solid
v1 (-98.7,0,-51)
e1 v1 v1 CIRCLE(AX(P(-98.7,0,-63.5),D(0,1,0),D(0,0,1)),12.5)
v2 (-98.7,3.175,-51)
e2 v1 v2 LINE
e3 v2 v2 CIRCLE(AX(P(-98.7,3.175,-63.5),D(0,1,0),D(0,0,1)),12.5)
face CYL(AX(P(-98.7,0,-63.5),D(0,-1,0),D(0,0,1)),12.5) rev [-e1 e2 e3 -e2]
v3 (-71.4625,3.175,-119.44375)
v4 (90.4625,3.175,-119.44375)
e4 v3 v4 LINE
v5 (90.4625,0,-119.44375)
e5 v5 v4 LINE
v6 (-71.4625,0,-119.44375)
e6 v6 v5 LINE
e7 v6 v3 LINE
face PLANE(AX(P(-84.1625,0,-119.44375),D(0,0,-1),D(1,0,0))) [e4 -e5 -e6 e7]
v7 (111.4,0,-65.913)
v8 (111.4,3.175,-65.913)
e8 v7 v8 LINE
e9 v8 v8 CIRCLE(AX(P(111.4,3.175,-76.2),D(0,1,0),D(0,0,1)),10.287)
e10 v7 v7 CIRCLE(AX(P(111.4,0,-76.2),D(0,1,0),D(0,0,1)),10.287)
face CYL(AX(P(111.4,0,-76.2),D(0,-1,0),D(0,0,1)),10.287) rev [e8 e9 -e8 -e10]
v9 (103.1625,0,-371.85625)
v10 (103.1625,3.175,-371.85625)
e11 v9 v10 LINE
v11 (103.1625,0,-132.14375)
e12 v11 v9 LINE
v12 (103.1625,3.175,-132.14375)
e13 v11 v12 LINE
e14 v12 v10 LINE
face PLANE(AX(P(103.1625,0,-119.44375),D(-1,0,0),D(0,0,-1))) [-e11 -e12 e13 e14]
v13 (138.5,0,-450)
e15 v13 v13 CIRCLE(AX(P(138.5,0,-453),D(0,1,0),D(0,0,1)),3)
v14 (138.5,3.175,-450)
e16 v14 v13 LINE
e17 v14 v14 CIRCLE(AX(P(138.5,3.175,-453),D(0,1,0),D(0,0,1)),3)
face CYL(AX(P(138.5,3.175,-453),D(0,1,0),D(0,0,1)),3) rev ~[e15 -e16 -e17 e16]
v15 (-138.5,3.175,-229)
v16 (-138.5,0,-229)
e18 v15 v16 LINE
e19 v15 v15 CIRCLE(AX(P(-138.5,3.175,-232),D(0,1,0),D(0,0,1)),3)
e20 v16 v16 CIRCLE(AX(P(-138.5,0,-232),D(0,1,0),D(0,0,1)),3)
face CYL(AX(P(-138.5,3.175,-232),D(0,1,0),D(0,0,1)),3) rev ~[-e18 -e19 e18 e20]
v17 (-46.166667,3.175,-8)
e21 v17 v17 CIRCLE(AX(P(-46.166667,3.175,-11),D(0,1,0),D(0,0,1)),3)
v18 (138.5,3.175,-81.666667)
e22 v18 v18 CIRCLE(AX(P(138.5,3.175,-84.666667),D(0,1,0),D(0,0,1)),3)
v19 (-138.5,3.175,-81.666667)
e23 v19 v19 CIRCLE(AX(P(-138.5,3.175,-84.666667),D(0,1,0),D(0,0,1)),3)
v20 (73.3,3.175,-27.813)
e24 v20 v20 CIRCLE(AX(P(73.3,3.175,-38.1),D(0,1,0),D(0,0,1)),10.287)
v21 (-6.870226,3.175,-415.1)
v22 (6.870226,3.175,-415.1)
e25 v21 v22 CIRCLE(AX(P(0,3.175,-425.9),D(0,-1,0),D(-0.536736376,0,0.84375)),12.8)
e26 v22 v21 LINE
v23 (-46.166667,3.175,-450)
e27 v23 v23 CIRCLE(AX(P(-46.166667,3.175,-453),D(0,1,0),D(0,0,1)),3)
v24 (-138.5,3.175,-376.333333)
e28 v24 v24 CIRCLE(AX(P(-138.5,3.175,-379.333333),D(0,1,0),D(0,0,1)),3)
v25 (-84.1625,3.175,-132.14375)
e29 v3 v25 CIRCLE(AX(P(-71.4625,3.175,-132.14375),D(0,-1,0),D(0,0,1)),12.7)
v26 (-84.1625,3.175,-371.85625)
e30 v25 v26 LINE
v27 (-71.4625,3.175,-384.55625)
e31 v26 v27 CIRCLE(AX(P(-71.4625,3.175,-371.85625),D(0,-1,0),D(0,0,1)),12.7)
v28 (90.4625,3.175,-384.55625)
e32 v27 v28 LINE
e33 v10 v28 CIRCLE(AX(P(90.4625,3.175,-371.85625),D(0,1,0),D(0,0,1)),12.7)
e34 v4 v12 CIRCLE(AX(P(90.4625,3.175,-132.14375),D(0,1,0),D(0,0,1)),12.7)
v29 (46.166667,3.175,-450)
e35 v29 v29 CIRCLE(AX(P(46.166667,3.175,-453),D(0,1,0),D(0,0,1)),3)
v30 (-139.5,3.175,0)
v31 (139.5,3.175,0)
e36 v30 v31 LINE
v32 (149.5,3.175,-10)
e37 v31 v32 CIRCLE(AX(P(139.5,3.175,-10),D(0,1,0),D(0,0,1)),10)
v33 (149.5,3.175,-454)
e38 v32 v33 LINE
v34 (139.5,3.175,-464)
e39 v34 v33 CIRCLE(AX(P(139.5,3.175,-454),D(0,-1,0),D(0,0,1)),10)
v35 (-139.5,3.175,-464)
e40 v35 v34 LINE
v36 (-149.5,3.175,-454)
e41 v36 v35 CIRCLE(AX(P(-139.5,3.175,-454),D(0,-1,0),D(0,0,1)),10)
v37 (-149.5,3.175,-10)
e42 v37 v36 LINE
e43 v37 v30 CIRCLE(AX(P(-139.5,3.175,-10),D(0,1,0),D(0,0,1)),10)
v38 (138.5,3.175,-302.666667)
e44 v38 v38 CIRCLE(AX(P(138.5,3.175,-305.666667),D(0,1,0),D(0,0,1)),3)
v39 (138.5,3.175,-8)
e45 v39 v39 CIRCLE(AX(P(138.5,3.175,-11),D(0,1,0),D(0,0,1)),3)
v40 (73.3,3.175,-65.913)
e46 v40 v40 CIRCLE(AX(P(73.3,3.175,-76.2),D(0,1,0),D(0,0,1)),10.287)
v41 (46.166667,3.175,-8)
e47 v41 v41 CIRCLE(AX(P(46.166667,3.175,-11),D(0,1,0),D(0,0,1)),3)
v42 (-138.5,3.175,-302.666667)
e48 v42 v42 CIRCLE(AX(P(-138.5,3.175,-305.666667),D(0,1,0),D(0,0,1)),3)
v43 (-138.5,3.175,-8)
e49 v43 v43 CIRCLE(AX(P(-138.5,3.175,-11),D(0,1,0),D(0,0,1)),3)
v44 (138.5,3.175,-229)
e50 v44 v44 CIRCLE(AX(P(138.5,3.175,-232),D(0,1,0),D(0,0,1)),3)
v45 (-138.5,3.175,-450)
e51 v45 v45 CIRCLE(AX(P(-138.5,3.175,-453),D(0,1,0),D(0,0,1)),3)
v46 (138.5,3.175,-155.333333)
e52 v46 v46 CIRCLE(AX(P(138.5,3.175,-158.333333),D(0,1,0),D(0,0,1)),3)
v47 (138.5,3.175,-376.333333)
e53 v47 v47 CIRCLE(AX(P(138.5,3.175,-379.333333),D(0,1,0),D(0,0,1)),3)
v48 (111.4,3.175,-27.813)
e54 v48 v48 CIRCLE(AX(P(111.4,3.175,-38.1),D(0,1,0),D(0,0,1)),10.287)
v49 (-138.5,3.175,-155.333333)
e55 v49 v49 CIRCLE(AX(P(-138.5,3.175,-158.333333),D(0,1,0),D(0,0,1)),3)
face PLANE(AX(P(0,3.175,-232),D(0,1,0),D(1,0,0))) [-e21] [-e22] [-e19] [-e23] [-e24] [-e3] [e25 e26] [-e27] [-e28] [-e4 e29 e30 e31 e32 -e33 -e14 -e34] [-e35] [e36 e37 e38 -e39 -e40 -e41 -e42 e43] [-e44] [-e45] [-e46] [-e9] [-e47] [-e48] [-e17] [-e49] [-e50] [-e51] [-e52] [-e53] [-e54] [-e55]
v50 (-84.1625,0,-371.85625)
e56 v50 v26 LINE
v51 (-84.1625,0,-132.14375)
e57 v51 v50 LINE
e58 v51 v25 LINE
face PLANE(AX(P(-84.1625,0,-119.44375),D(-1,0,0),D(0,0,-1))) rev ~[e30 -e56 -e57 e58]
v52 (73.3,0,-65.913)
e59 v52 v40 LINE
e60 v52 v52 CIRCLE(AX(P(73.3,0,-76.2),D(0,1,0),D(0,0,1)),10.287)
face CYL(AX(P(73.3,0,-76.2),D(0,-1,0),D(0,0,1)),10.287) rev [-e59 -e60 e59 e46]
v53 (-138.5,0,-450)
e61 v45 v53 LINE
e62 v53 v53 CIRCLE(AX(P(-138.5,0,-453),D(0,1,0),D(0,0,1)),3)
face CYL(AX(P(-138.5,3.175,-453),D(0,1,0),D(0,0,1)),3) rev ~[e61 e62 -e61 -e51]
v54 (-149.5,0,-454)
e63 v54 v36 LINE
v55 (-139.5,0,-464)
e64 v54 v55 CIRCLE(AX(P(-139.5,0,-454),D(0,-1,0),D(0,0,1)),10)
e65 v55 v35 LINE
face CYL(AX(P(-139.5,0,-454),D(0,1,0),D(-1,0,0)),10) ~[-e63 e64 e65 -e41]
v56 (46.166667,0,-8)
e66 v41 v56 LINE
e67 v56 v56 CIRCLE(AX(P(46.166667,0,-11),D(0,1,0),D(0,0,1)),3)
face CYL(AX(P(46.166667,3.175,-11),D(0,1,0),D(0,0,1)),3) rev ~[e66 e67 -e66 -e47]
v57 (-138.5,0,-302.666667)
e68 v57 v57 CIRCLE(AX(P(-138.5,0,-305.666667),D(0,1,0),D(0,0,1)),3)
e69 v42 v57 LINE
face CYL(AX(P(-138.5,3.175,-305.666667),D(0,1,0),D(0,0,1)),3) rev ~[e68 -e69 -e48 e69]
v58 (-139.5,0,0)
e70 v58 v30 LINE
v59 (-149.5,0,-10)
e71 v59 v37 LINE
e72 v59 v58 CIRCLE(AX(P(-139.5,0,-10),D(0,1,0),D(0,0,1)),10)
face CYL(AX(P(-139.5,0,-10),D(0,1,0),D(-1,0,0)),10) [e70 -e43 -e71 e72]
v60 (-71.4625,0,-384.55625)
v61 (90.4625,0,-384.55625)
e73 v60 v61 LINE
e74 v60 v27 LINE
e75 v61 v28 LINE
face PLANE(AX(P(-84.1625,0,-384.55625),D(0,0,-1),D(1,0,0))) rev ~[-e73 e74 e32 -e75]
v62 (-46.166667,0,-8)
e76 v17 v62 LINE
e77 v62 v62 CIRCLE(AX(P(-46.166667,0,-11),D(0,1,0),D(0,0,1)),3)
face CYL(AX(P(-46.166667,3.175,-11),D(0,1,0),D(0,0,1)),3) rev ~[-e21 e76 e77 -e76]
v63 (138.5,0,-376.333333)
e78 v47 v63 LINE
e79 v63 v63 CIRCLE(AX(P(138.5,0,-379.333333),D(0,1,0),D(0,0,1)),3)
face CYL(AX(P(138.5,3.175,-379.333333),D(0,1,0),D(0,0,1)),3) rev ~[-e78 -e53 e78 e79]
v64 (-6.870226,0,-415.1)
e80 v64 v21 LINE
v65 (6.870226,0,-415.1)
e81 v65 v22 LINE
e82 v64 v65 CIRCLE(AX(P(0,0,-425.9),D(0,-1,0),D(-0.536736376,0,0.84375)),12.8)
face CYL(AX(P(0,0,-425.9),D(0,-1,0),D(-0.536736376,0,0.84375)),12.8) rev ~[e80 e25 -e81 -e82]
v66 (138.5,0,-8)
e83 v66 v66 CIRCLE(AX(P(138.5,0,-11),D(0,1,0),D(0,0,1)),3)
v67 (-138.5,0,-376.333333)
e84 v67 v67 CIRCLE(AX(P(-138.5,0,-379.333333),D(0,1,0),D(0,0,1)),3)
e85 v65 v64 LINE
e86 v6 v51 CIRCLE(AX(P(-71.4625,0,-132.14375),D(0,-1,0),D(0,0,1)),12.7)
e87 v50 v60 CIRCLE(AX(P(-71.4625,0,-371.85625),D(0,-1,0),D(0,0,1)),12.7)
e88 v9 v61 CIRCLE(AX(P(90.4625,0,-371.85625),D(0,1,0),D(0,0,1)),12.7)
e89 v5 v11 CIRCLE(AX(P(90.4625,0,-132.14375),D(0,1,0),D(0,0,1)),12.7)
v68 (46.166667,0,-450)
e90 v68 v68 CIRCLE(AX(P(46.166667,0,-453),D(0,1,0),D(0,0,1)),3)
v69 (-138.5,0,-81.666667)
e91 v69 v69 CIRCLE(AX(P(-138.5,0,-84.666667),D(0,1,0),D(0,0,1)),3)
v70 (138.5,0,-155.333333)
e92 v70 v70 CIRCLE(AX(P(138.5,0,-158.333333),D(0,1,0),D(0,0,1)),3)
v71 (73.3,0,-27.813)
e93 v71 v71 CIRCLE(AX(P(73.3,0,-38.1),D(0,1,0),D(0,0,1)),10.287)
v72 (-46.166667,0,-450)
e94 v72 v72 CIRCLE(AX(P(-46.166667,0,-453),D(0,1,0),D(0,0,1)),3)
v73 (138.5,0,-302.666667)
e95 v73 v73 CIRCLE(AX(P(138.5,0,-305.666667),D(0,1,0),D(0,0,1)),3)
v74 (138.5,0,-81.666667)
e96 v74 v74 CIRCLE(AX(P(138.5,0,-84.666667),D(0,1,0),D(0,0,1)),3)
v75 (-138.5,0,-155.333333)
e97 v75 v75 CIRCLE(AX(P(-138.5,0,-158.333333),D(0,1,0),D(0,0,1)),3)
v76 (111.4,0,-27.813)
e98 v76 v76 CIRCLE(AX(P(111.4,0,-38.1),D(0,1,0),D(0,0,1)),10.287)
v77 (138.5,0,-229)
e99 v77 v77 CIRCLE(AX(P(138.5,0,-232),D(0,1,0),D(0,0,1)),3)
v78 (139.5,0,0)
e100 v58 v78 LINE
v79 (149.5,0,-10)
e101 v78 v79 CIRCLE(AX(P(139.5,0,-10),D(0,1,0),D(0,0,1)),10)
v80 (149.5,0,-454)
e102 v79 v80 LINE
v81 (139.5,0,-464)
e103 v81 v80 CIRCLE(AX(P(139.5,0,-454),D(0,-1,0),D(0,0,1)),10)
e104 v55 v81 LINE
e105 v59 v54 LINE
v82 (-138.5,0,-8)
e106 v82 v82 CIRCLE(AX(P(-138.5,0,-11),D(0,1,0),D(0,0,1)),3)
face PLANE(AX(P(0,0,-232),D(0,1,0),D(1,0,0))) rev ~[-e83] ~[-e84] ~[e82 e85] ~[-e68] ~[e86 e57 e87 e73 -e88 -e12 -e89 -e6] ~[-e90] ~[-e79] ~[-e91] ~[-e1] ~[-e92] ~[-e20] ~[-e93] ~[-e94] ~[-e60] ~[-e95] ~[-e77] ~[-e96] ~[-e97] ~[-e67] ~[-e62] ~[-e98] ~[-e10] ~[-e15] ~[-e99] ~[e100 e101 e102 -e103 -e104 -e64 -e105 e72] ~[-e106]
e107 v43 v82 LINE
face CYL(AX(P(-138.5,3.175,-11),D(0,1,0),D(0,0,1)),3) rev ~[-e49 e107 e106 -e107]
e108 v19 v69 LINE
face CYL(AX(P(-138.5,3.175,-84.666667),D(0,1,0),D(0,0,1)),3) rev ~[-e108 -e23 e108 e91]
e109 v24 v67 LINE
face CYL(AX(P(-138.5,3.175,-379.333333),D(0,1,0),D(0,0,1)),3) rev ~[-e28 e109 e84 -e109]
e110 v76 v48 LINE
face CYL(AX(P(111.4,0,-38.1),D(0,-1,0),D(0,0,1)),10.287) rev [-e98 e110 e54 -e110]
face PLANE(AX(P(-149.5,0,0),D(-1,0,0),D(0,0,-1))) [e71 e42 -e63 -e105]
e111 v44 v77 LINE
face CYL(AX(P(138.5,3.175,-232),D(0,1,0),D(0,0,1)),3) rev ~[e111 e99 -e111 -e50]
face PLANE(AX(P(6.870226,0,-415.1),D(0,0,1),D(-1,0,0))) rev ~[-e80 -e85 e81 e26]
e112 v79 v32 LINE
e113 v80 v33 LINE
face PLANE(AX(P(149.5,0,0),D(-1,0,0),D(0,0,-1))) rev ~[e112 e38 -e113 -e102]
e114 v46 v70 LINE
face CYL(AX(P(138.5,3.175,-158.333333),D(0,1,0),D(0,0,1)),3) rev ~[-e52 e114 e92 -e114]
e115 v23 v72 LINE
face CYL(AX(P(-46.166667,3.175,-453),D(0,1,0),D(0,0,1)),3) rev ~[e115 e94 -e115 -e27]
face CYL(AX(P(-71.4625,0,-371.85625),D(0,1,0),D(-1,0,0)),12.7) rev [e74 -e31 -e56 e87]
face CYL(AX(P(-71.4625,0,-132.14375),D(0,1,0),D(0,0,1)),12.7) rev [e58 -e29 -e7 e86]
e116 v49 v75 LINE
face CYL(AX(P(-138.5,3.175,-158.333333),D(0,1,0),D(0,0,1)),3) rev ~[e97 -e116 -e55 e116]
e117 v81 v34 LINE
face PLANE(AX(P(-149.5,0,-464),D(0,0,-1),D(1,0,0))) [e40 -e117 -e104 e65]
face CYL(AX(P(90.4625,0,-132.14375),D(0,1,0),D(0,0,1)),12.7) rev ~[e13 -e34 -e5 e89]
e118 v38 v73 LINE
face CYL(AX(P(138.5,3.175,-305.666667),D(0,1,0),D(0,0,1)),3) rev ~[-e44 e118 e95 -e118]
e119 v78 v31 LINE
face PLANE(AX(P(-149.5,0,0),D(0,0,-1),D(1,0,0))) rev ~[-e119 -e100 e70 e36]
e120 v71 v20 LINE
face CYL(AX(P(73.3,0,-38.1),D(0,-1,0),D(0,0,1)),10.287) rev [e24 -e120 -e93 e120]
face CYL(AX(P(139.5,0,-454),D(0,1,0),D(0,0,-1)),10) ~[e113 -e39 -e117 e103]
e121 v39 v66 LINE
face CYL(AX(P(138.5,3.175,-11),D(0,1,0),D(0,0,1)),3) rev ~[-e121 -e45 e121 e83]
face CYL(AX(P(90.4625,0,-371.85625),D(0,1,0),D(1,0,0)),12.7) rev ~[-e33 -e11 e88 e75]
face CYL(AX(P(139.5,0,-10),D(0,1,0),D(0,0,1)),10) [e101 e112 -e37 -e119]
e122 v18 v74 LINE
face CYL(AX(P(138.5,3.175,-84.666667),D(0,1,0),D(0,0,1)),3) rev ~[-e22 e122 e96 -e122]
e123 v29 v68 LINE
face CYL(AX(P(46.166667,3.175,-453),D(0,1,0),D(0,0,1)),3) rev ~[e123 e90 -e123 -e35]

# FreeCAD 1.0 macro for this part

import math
import FreeCAD as App
import Part
import Sketcher

V = App.Vector
Q = App.Units.Quantity


def edges_at(feature, points):
    """Names of the edges that pass closest to the given points."""
    edges = feature.Shape.Edges
    near = lambda p: min(range(len(edges)), key=lambda i: edges[i].distToShape(Part.Vertex(*p))[0])
    return sorted({f"Edge{near(p) + 1}" for p in points})

doc = App.newDocument("Part")
body = doc.addObject("PartDesign::Body", "Body")

sketch1 = body.newObject("Sketcher::SketchObject", "Sketch")
sketch1.AttachmentSupport = (doc.getObject("XZ_Plane"), [""])
sketch1.MapMode = "FlatFace"
sketch1.addGeometry(Part.LineSegment(V(-150, -464, 0), V(-150, 0, 0)), False)
sketch1.addGeometry(Part.LineSegment(V(-150, 0, 0), V(150, 0, 0)), False)
sketch1.addGeometry(Part.LineSegment(V(150, 0, 0), V(150, -464, 0)), False)
sketch1.addGeometry(Part.LineSegment(V(150, -464, 0), V(-150, -464, 0)), False)
sketch1.addGeometry(Part.Circle(V(-99, -64, 0), V(0, 0, 1), 12), False)
sketch1.addGeometry(Part.Circle(V(73, -38, 0), V(0, 0, 1), 10), False)
sketch1.addGeometry(Part.Circle(V(73, -76, 0), V(0, 0, 1), 10), False)
sketch1.addGeometry(Part.Circle(V(111, -38, 0), V(0, 0, 1), 10), False)
sketch1.addGeometry(Part.Circle(V(111, -76, 0), V(0, 0, 1), 10), False)
sketch1.addGeometry(Part.ArcOfCircle(Part.Circle(V(0, -426, 0), V(0, 0, 1), 13), math.radians(122), math.radians(418)), False)
sketch1.addGeometry(Part.LineSegment(V(7, -415, 0), V(-7, -415, 0)), False)
sketch1.addGeometry(Part.LineSegment(V(103, -119, 0), V(-84, -119, 0)), False)
sketch1.addGeometry(Part.LineSegment(V(-84, -119, 0), V(-84, -385, 0)), False)
sketch1.addGeometry(Part.LineSegment(V(-84, -385, 0), V(103, -385, 0)), False)
sketch1.addGeometry(Part.LineSegment(V(103, -385, 0), V(103, -119, 0)), False)
sketch1.addConstraint(Sketcher.Constraint("Coincident", 0, 2, 1, 1))
sketch1.addConstraint(Sketcher.Constraint("Coincident", 1, 2, 2, 1))
sketch1.addConstraint(Sketcher.Constraint("Coincident", 2, 2, 3, 1))
sketch1.addConstraint(Sketcher.Constraint("Coincident", 3, 2, 0, 1))
sketch1.addConstraint(Sketcher.Constraint("Coincident", 9, 1, 10, 2))
sketch1.addConstraint(Sketcher.Constraint("Coincident", 10, 1, 9, 2))
sketch1.addConstraint(Sketcher.Constraint("Coincident", 11, 2, 12, 1))
sketch1.addConstraint(Sketcher.Constraint("Coincident", 12, 2, 13, 1))
sketch1.addConstraint(Sketcher.Constraint("Coincident", 13, 2, 14, 1))
sketch1.addConstraint(Sketcher.Constraint("Coincident", 14, 2, 11, 1))
sketch1.addConstraint(Sketcher.Constraint("Vertical", 0))
sketch1.addConstraint(Sketcher.Constraint("Horizontal", 1))
sketch1.addConstraint(Sketcher.Constraint("Vertical", 2))
sketch1.addConstraint(Sketcher.Constraint("Horizontal", 3))
sketch1.addConstraint(Sketcher.Constraint("Horizontal", 10))
sketch1.addConstraint(Sketcher.Constraint("Horizontal", 11))
sketch1.addConstraint(Sketcher.Constraint("Vertical", 12))
sketch1.addConstraint(Sketcher.Constraint("Horizontal", 13))
sketch1.addConstraint(Sketcher.Constraint("Vertical", 14))
sketch1.addConstraint(Sketcher.Constraint("Equal", 5, 6))
sketch1.addConstraint(Sketcher.Constraint("Equal", 6, 7))
sketch1.addConstraint(Sketcher.Constraint("Equal", 7, 8))
sketch1.addConstraint(Sketcher.Constraint("Symmetric", 0, 2, 1, 2, -1, 1))
sketch1.addConstraint(Sketcher.Constraint("PointOnObject", 9, 3, -2))
sketch1.addConstraint(Sketcher.Constraint("Horizontal", 5, 3, 7, 3))
sketch1.addConstraint(Sketcher.Constraint("Horizontal", 6, 3, 8, 3))
sketch1.addConstraint(Sketcher.Constraint("Vertical", 5, 3, 6, 3))
sketch1.addConstraint(Sketcher.Constraint("Vertical", 7, 3, 8, 3))
sketch1.addConstraint(Sketcher.Constraint("Diameter", 4, Q("25 mm")))
sketch1.addConstraint(Sketcher.Constraint("Radius", 9, Q("12.8 mm")))
sketch1.addConstraint(Sketcher.Constraint("DistanceX", 1, 1, 1, 2, Q("299 mm")))
sketch1.addConstraint(Sketcher.Constraint("DistanceY", 0, 1, 0, 2, Q("464 mm")))
sketch1.addConstraint(Sketcher.Constraint("Diameter", 5, Q("20.574 mm")))
sketch1.addConstraint(Sketcher.Constraint("DistanceX", 4, 3, 5, 3, Q("172 mm")))
sketch1.addConstraint(Sketcher.Constraint("DistanceX", 4, 3, -1, 1, Q("98.7 mm")))
sketch1.addConstraint(Sketcher.Constraint("DistanceY", 4, 3, -1, 1, Q("63.5 mm")))
sketch1.addConstraint(Sketcher.Constraint("DistanceY", 5, 3, -1, 1, Q("38.1 mm")))
sketch1.addConstraint(Sketcher.Constraint("DistanceY", 6, 3, -1, 1, Q("76.2 mm")))
sketch1.addConstraint(Sketcher.Constraint("DistanceX", -1, 1, 7, 3, Q("111.4 mm")))
sketch1.addConstraint(Sketcher.Constraint("DistanceY", 9, 3, -1, 1, Q("425.9 mm")))
sketch1.addConstraint(Sketcher.Constraint("DistanceY", 9, 1, -1, 1, Q("415.1 mm")))
sketch1.addConstraint(Sketcher.Constraint("DistanceX", 11, 2, 11, 1, Q("187.325 mm")))
sketch1.addConstraint(Sketcher.Constraint("DistanceY", 12, 2, 12, 1, Q("265.1125 mm")))
sketch1.addConstraint(Sketcher.Constraint("DistanceX", 11, 2, -1, 1, Q("84.1625 mm")))
sketch1.addConstraint(Sketcher.Constraint("DistanceY", 11, 2, -1, 1, Q("119.44375 mm")))
pad1 = body.newObject("PartDesign::Pad", "Pad")
pad1.Profile = sketch1
pad1.Length = 3.175
pad1.Reversed = True
doc.recompute()

fillet = body.newObject("PartDesign::Fillet", "Fillet")
fillet.Base = (pad1, edges_at(pad1, [
    (-149.5, 1.587, -464),
    (149.5, 1.587, -464),
    (149.5, 1.587, 0),
    (-149.5, 1.587, 0),
]))
fillet.Radius = 10
doc.recompute()

fillet2 = body.newObject("PartDesign::Fillet", "Fillet001")
fillet2.Base = (fillet, edges_at(fillet, [
    (103.162, 1.587, -119.444),
    (103.162, 1.587, -384.556),
    (-84.162, 1.587, -384.556),
    (-84.162, 1.587, -119.444),
]))
fillet2.Radius = 12.7

sketch2 = body.newObject("Sketcher::SketchObject", "Sketch001")
sketch2.AttachmentSupport = (doc.getObject("XZ_Plane"), [""])
sketch2.MapMode = "FlatFace"
sketch2.AttachmentOffset = App.Placement(V(0, 0, -3.175), App.Rotation())
sketch2.addGeometry(Part.Circle(V(-138.5, -11, 0), V(0, 0, 1), 3), False)
sketch2.addGeometry(Part.Circle(V(-46.2, -11, 0), V(0, 0, 1), 3), False)
sketch2.addGeometry(Part.Circle(V(46.2, -11, 0), V(0, 0, 1), 3), False)
sketch2.addGeometry(Part.Circle(V(138.5, -11, 0), V(0, 0, 1), 3), False)
sketch2.addGeometry(Part.Circle(V(-138.5, -84.7, 0), V(0, 0, 1), 3), False)
sketch2.addGeometry(Part.Circle(V(-138.5, -158.3, 0), V(0, 0, 1), 3), False)
sketch2.addGeometry(Part.Circle(V(-138.5, -232, 0), V(0, 0, 1), 3), False)
sketch2.addGeometry(Part.Circle(V(-138.5, -305.7, 0), V(0, 0, 1), 3), False)
sketch2.addGeometry(Part.Circle(V(-138.5, -379.3, 0), V(0, 0, 1), 3), False)
sketch2.addGeometry(Part.Circle(V(-138.5, -453, 0), V(0, 0, 1), 3), False)
sketch2.addGeometry(Part.Circle(V(138.5, -84.7, 0), V(0, 0, 1), 3), False)
sketch2.addGeometry(Part.Circle(V(138.5, -158.3, 0), V(0, 0, 1), 3), False)
sketch2.addGeometry(Part.Circle(V(138.5, -232, 0), V(0, 0, 1), 3), False)
sketch2.addGeometry(Part.Circle(V(138.5, -305.7, 0), V(0, 0, 1), 3), False)
sketch2.addGeometry(Part.Circle(V(138.5, -379.3, 0), V(0, 0, 1), 3), False)
sketch2.addGeometry(Part.Circle(V(-46.2, -453, 0), V(0, 0, 1), 3), False)
sketch2.addGeometry(Part.Circle(V(46.2, -453, 0), V(0, 0, 1), 3), False)
sketch2.addGeometry(Part.Circle(V(138.5, -453, 0), V(0, 0, 1), 3), False)
sketch2.addConstraint(Sketcher.Constraint("Equal", 0, 1))
sketch2.addConstraint(Sketcher.Constraint("Equal", 1, 2))
sketch2.addConstraint(Sketcher.Constraint("Equal", 2, 3))
sketch2.addConstraint(Sketcher.Constraint("Equal", 3, 4))
sketch2.addConstraint(Sketcher.Constraint("Equal", 4, 5))
sketch2.addConstraint(Sketcher.Constraint("Equal", 5, 6))
sketch2.addConstraint(Sketcher.Constraint("Equal", 6, 7))
sketch2.addConstraint(Sketcher.Constraint("Equal", 7, 8))
sketch2.addConstraint(Sketcher.Constraint("Equal", 8, 9))
sketch2.addConstraint(Sketcher.Constraint("Equal", 9, 10))
sketch2.addConstraint(Sketcher.Constraint("Equal", 10, 11))
sketch2.addConstraint(Sketcher.Constraint("Equal", 11, 12))
sketch2.addConstraint(Sketcher.Constraint("Equal", 12, 13))
sketch2.addConstraint(Sketcher.Constraint("Equal", 13, 14))
sketch2.addConstraint(Sketcher.Constraint("Equal", 14, 15))
sketch2.addConstraint(Sketcher.Constraint("Equal", 15, 16))
sketch2.addConstraint(Sketcher.Constraint("Equal", 16, 17))
sketch2.addConstraint(Sketcher.Constraint("Symmetric", 1, 3, 2, 3, -2))
sketch2.addConstraint(Sketcher.Constraint("Symmetric", 0, 3, 3, 3, -2))
sketch2.addConstraint(Sketcher.Constraint("Symmetric", 4, 3, 10, 3, -2))
sketch2.addConstraint(Sketcher.Constraint("Symmetric", 5, 3, 11, 3, -2))
sketch2.addConstraint(Sketcher.Constraint("Symmetric", 6, 3, 12, 3, -2))
sketch2.addConstraint(Sketcher.Constraint("Symmetric", 7, 3, 13, 3, -2))
sketch2.addConstraint(Sketcher.Constraint("Symmetric", 8, 3, 14, 3, -2))
sketch2.addConstraint(Sketcher.Constraint("Symmetric", 15, 3, 16, 3, -2))
sketch2.addConstraint(Sketcher.Constraint("Symmetric", 9, 3, 17, 3, -2))
sketch2.addConstraint(Sketcher.Constraint("Horizontal", 0, 3, 1, 3))
sketch2.addConstraint(Sketcher.Constraint("Horizontal", 9, 3, 15, 3))
sketch2.addConstraint(Sketcher.Constraint("Vertical", 0, 3, 4, 3))
sketch2.addConstraint(Sketcher.Constraint("Vertical", 4, 3, 5, 3))
sketch2.addConstraint(Sketcher.Constraint("Vertical", 5, 3, 6, 3))
sketch2.addConstraint(Sketcher.Constraint("Vertical", 6, 3, 7, 3))
sketch2.addConstraint(Sketcher.Constraint("Vertical", 7, 3, 8, 3))
sketch2.addConstraint(Sketcher.Constraint("Vertical", 8, 3, 9, 3))
sketch2.addConstraint(Sketcher.Constraint("Vertical", 1, 3, 15, 3))
sketch2.addConstraint(Sketcher.Constraint("Diameter", 0, Q("6 mm")))
sketch2.addConstraint(Sketcher.Constraint("DistanceY", 0, 3, -1, 1, Q("11 mm")))
sketch2.addConstraint(Sketcher.Constraint("DistanceY", 6, 3, -1, 1, Q("232 mm")))
sketch2.addConstraint(Sketcher.Constraint("DistanceY", 9, 3, -1, 1, Q("453 mm")))
sketch2.addConstraint(Sketcher.Constraint("DistanceX", 0, 3, 3, 3, Q("277 mm")))
sketch2.addConstraint(Sketcher.Constraint("DistanceY", 7, 3, 4, 3, Q("221 mm")))
sketch2.addConstraint(Sketcher.Constraint("DistanceY", 8, 3, 5, 3, Q("221 mm")))
sketch2.addConstraint(Sketcher.Constraint("DistanceX", 1, 3, -1, 1, Q("46.166667 mm")))
sketch2.addConstraint(Sketcher.Constraint("DistanceY", 4, 3, -1, 1, Q("84.666667 mm")))
sketch2.addConstraint(Sketcher.Constraint("DistanceY", 5, 3, -1, 1, Q("158.333333 mm")))
pocket1 = body.newObject("PartDesign::Pocket", "Pocket")
pocket1.Profile = sketch2
pocket1.Length = 3.175
pocket1.Reversed = True

doc.recompute()
